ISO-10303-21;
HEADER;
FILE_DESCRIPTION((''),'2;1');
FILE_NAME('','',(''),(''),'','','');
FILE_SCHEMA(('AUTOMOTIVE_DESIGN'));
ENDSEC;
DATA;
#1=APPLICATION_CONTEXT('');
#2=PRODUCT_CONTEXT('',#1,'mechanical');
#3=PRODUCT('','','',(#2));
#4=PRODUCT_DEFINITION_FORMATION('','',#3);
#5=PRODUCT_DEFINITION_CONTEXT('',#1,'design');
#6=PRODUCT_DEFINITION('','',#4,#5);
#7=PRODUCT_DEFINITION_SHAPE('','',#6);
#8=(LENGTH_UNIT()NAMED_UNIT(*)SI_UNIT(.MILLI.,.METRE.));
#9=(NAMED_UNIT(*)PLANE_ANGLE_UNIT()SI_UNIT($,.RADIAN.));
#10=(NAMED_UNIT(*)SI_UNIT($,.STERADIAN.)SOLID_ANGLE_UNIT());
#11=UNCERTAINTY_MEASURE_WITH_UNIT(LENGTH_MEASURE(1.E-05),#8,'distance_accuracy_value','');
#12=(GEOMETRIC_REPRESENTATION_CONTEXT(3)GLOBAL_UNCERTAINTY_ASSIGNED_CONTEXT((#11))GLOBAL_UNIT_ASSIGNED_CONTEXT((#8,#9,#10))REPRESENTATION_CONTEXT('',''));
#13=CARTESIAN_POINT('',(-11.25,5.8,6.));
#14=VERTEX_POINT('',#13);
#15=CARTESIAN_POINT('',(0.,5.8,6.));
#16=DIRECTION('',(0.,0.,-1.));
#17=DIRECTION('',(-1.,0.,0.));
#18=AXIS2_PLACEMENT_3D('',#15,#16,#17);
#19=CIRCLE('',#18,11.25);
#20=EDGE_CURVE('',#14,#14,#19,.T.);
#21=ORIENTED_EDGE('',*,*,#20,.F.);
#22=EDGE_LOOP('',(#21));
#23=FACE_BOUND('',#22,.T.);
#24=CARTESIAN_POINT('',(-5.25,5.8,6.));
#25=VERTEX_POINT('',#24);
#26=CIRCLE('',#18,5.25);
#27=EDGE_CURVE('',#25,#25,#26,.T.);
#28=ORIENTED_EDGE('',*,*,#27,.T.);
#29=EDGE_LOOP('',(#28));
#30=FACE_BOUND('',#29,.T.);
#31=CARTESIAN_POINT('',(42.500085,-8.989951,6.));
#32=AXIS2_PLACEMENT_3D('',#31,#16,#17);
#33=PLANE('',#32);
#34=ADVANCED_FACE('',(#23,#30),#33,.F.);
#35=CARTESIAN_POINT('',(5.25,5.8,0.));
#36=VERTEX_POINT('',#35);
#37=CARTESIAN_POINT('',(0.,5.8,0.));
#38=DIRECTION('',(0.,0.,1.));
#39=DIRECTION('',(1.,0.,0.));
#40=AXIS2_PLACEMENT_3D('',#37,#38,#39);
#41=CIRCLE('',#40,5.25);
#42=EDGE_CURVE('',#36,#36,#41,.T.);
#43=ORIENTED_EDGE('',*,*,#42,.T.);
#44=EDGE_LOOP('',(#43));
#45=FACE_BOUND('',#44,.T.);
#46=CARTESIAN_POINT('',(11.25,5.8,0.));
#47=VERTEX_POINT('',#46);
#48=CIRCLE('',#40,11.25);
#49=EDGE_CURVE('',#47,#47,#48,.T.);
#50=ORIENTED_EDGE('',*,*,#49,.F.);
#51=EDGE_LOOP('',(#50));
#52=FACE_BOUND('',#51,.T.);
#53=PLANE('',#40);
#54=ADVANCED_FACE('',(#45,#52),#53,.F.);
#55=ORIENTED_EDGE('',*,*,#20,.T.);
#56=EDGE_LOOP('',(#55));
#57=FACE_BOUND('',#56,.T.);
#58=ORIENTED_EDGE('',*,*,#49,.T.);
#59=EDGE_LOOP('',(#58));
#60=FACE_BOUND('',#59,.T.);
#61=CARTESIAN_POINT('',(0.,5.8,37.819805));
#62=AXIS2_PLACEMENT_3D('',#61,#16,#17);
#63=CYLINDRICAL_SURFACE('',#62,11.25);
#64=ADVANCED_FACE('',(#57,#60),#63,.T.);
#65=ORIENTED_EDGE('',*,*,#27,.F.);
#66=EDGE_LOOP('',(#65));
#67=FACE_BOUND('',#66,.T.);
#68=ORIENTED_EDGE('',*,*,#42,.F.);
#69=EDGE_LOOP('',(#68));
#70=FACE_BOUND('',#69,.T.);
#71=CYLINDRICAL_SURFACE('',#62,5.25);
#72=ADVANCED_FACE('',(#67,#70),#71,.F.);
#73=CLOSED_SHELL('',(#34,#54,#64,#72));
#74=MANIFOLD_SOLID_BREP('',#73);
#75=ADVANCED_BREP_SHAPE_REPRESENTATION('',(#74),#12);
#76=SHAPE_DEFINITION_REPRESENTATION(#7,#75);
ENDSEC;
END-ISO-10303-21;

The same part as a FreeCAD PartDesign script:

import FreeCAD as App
import Part
import Sketcher

V = App.Vector
Q = App.Units.Quantity

doc = App.newDocument("Part")
body = doc.addObject("PartDesign::Body", "Body")

sketch1 = body.newObject("Sketcher::SketchObject", "Sketch")
sketch1.AttachmentSupport = (doc.getObject("XY_Plane"), [""])
sketch1.MapMode = "FlatFace"
sketch1.addGeometry(Part.Circle(V(0, 6, 0), V(0, 0, 1), 11), False)
sketch1.addGeometry(Part.Circle(V(0, 6, 0), V(0, 0, 1), 5), False)
sketch1.addConstraint(Sketcher.Constraint("Coincident", 1, 3, 0, 3))
sketch1.addConstraint(Sketcher.Constraint("PointOnObject", 0, 3, -2))
sketch1.addConstraint(Sketcher.Constraint("Diameter", 0, Q("22.5 mm")))
sketch1.addConstraint(Sketcher.Constraint("Diameter", 1, Q("10.5 mm")))
sketch1.addConstraint(Sketcher.Constraint("DistanceY", -1, 1, 0, 3, Q("5.8 mm")))
pad1 = body.newObject("PartDesign::Pad", "Pad")
pad1.Profile = sketch1
pad1.Length = 6

doc.recompute()
